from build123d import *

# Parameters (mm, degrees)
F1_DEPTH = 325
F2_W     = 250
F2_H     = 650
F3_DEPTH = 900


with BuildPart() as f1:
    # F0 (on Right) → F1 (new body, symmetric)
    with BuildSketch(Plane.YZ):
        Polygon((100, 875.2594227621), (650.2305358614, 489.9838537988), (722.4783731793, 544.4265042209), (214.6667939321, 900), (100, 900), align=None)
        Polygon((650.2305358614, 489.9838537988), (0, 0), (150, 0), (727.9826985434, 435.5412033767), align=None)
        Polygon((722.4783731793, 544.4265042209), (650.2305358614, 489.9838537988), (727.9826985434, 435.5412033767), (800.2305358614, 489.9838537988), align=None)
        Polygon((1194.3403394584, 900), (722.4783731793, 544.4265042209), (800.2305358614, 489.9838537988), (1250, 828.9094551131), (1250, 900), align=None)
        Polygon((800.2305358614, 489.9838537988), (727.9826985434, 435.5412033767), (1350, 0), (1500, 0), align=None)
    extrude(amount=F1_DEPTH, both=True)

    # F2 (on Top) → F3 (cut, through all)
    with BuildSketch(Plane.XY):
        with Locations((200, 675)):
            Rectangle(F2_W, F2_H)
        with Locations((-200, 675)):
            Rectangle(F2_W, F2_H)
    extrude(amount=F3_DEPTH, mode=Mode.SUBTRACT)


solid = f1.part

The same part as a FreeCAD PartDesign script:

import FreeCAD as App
import Part
import Sketcher
from FreeCAD import Vector
Q = App.Units.Quantity


def add_polygon(sketch, points):
    """Adds a closed chain of lines whose ends are joined by coincident constraints."""
    first, n = sketch.GeometryCount, len(points)
    for a, b in zip(points, points[1:] + points[:1]):
        sketch.addGeometry(Part.LineSegment(App.Vector(*a, 0), App.Vector(*b, 0)), False)
    for i in range(n):
        sketch.addConstraint(Sketcher.Constraint("Coincident", first + i, 2, first + (i + 1) % n, 1))

doc = App.newDocument("Part")
body = doc.addObject("PartDesign::Body", "Body")

sketch1 = body.newObject("Sketcher::SketchObject", "Sketch")
sketch1.AttachmentSupport = (doc.getObject("YZ_Plane"), [""])
sketch1.MapMode = "FlatFace"
add_polygon(sketch1, [(100, 875), (650, 490), (0, 0), (150, 0), (728, 436), (1350, 0), (1500, 0), (800, 490), (1250, 829), (1250, 900), (1194, 900), (722, 544), (215, 900), (100, 900)])
sketch1.addConstraint([
    Sketcher.Constraint("Horizontal", 2),
    Sketcher.Constraint("Horizontal", 5),
    Sketcher.Constraint("Vertical", 8),
    Sketcher.Constraint("Horizontal", 9),
    Sketcher.Constraint("Horizontal", 12),
    Sketcher.Constraint("Vertical", 13),
    Sketcher.Constraint("Coincident", 1, 2, -1, 1),
    Sketcher.Constraint("PointOnObject", 4, 2, -1),
    Sketcher.Constraint("Parallel", 1, 3),
    Sketcher.Constraint("Parallel", 0, 4),
    Sketcher.Constraint("Parallel", 4, 6),
    Sketcher.Constraint("Parallel", 3, 7),
    Sketcher.Constraint("Parallel", 7, 10),
    Sketcher.Constraint("Parallel", 6, 11),
    Sketcher.Constraint("Horizontal", 0, 2, 6, 2),
    Sketcher.Constraint("Horizontal", 9, 2, 11, 2),
    Sketcher.Constraint("Equal", 2, 5),
    Sketcher.Constraint("DistanceX", 2, 1, 2, 2, Q("150 mm")),
    Sketcher.Constraint("Angle", 0, Q("-35 deg")),
    Sketcher.Constraint("Angle", 1, Q("-143 deg")),
    Sketcher.Constraint("DistanceX", -1, 1, 4, 2, Q("1350 mm")),
    Sketcher.Constraint("DistanceX", -1, 1, 7, 2, Q("1250 mm")),
    Sketcher.Constraint("DistanceY", -1, 1, 8, 2, Q("900 mm")),
    Sketcher.Constraint("DistanceX", -1, 1, 12, 2, Q("100 mm")),
    Sketcher.Constraint("DistanceX", 0, 2, 6, 2, Q("150 mm")),
    Sketcher.Constraint("DistanceX", 9, 2, 9, 1, Q("55.659661 mm")),
    Sketcher.Constraint("DistanceY", 3, 2, 10, 2, Q("108.885301 mm")),
])
pad1 = body.newObject("PartDesign::Pad", "Pad")
pad1.Profile = sketch1
pad1.Length = 650
pad1.Midplane = True

sketch2 = body.newObject("Sketcher::SketchObject", "Sketch001")
sketch2.AttachmentSupport = (doc.getObject("XY_Plane"), [""])
sketch2.MapMode = "FlatFace"
add_polygon(sketch2, [(75, 1000), (75, 350), (325, 350), (325, 1000)])
add_polygon(sketch2, [(-325, 1000), (-325, 350), (-75, 350), (-75, 1000)])
sketch2.addConstraint([
    Sketcher.Constraint("Vertical", 0),
    Sketcher.Constraint("Horizontal", 1),
    Sketcher.Constraint("Vertical", 2),
    Sketcher.Constraint("Horizontal", 3),
    Sketcher.Constraint("Vertical", 4),
    Sketcher.Constraint("Horizontal", 5),
    Sketcher.Constraint("Vertical", 6),
    Sketcher.Constraint("Horizontal", 7),
    Sketcher.Constraint("Symmetric", 1, 2, 4, 2, -2),
    Sketcher.Constraint("Symmetric", 3, 2, 6, 2, -2),
    Sketcher.Constraint("DistanceX", 1, 1, 1, 2, Q("250 mm")),
    Sketcher.Constraint("DistanceY", 0, 2, 0, 1, Q("650 mm")),
    Sketcher.Constraint("DistanceX", -1, 1, 0, 2, Q("75 mm")),
    Sketcher.Constraint("DistanceY", -1, 1, 0, 2, Q("350 mm")),
])
pocket1 = body.newObject("PartDesign::Pocket", "Pocket")
pocket1.Profile = sketch2
pocket1.Type = "ThroughAll"
pocket1.Reversed = True

doc.recompute()
